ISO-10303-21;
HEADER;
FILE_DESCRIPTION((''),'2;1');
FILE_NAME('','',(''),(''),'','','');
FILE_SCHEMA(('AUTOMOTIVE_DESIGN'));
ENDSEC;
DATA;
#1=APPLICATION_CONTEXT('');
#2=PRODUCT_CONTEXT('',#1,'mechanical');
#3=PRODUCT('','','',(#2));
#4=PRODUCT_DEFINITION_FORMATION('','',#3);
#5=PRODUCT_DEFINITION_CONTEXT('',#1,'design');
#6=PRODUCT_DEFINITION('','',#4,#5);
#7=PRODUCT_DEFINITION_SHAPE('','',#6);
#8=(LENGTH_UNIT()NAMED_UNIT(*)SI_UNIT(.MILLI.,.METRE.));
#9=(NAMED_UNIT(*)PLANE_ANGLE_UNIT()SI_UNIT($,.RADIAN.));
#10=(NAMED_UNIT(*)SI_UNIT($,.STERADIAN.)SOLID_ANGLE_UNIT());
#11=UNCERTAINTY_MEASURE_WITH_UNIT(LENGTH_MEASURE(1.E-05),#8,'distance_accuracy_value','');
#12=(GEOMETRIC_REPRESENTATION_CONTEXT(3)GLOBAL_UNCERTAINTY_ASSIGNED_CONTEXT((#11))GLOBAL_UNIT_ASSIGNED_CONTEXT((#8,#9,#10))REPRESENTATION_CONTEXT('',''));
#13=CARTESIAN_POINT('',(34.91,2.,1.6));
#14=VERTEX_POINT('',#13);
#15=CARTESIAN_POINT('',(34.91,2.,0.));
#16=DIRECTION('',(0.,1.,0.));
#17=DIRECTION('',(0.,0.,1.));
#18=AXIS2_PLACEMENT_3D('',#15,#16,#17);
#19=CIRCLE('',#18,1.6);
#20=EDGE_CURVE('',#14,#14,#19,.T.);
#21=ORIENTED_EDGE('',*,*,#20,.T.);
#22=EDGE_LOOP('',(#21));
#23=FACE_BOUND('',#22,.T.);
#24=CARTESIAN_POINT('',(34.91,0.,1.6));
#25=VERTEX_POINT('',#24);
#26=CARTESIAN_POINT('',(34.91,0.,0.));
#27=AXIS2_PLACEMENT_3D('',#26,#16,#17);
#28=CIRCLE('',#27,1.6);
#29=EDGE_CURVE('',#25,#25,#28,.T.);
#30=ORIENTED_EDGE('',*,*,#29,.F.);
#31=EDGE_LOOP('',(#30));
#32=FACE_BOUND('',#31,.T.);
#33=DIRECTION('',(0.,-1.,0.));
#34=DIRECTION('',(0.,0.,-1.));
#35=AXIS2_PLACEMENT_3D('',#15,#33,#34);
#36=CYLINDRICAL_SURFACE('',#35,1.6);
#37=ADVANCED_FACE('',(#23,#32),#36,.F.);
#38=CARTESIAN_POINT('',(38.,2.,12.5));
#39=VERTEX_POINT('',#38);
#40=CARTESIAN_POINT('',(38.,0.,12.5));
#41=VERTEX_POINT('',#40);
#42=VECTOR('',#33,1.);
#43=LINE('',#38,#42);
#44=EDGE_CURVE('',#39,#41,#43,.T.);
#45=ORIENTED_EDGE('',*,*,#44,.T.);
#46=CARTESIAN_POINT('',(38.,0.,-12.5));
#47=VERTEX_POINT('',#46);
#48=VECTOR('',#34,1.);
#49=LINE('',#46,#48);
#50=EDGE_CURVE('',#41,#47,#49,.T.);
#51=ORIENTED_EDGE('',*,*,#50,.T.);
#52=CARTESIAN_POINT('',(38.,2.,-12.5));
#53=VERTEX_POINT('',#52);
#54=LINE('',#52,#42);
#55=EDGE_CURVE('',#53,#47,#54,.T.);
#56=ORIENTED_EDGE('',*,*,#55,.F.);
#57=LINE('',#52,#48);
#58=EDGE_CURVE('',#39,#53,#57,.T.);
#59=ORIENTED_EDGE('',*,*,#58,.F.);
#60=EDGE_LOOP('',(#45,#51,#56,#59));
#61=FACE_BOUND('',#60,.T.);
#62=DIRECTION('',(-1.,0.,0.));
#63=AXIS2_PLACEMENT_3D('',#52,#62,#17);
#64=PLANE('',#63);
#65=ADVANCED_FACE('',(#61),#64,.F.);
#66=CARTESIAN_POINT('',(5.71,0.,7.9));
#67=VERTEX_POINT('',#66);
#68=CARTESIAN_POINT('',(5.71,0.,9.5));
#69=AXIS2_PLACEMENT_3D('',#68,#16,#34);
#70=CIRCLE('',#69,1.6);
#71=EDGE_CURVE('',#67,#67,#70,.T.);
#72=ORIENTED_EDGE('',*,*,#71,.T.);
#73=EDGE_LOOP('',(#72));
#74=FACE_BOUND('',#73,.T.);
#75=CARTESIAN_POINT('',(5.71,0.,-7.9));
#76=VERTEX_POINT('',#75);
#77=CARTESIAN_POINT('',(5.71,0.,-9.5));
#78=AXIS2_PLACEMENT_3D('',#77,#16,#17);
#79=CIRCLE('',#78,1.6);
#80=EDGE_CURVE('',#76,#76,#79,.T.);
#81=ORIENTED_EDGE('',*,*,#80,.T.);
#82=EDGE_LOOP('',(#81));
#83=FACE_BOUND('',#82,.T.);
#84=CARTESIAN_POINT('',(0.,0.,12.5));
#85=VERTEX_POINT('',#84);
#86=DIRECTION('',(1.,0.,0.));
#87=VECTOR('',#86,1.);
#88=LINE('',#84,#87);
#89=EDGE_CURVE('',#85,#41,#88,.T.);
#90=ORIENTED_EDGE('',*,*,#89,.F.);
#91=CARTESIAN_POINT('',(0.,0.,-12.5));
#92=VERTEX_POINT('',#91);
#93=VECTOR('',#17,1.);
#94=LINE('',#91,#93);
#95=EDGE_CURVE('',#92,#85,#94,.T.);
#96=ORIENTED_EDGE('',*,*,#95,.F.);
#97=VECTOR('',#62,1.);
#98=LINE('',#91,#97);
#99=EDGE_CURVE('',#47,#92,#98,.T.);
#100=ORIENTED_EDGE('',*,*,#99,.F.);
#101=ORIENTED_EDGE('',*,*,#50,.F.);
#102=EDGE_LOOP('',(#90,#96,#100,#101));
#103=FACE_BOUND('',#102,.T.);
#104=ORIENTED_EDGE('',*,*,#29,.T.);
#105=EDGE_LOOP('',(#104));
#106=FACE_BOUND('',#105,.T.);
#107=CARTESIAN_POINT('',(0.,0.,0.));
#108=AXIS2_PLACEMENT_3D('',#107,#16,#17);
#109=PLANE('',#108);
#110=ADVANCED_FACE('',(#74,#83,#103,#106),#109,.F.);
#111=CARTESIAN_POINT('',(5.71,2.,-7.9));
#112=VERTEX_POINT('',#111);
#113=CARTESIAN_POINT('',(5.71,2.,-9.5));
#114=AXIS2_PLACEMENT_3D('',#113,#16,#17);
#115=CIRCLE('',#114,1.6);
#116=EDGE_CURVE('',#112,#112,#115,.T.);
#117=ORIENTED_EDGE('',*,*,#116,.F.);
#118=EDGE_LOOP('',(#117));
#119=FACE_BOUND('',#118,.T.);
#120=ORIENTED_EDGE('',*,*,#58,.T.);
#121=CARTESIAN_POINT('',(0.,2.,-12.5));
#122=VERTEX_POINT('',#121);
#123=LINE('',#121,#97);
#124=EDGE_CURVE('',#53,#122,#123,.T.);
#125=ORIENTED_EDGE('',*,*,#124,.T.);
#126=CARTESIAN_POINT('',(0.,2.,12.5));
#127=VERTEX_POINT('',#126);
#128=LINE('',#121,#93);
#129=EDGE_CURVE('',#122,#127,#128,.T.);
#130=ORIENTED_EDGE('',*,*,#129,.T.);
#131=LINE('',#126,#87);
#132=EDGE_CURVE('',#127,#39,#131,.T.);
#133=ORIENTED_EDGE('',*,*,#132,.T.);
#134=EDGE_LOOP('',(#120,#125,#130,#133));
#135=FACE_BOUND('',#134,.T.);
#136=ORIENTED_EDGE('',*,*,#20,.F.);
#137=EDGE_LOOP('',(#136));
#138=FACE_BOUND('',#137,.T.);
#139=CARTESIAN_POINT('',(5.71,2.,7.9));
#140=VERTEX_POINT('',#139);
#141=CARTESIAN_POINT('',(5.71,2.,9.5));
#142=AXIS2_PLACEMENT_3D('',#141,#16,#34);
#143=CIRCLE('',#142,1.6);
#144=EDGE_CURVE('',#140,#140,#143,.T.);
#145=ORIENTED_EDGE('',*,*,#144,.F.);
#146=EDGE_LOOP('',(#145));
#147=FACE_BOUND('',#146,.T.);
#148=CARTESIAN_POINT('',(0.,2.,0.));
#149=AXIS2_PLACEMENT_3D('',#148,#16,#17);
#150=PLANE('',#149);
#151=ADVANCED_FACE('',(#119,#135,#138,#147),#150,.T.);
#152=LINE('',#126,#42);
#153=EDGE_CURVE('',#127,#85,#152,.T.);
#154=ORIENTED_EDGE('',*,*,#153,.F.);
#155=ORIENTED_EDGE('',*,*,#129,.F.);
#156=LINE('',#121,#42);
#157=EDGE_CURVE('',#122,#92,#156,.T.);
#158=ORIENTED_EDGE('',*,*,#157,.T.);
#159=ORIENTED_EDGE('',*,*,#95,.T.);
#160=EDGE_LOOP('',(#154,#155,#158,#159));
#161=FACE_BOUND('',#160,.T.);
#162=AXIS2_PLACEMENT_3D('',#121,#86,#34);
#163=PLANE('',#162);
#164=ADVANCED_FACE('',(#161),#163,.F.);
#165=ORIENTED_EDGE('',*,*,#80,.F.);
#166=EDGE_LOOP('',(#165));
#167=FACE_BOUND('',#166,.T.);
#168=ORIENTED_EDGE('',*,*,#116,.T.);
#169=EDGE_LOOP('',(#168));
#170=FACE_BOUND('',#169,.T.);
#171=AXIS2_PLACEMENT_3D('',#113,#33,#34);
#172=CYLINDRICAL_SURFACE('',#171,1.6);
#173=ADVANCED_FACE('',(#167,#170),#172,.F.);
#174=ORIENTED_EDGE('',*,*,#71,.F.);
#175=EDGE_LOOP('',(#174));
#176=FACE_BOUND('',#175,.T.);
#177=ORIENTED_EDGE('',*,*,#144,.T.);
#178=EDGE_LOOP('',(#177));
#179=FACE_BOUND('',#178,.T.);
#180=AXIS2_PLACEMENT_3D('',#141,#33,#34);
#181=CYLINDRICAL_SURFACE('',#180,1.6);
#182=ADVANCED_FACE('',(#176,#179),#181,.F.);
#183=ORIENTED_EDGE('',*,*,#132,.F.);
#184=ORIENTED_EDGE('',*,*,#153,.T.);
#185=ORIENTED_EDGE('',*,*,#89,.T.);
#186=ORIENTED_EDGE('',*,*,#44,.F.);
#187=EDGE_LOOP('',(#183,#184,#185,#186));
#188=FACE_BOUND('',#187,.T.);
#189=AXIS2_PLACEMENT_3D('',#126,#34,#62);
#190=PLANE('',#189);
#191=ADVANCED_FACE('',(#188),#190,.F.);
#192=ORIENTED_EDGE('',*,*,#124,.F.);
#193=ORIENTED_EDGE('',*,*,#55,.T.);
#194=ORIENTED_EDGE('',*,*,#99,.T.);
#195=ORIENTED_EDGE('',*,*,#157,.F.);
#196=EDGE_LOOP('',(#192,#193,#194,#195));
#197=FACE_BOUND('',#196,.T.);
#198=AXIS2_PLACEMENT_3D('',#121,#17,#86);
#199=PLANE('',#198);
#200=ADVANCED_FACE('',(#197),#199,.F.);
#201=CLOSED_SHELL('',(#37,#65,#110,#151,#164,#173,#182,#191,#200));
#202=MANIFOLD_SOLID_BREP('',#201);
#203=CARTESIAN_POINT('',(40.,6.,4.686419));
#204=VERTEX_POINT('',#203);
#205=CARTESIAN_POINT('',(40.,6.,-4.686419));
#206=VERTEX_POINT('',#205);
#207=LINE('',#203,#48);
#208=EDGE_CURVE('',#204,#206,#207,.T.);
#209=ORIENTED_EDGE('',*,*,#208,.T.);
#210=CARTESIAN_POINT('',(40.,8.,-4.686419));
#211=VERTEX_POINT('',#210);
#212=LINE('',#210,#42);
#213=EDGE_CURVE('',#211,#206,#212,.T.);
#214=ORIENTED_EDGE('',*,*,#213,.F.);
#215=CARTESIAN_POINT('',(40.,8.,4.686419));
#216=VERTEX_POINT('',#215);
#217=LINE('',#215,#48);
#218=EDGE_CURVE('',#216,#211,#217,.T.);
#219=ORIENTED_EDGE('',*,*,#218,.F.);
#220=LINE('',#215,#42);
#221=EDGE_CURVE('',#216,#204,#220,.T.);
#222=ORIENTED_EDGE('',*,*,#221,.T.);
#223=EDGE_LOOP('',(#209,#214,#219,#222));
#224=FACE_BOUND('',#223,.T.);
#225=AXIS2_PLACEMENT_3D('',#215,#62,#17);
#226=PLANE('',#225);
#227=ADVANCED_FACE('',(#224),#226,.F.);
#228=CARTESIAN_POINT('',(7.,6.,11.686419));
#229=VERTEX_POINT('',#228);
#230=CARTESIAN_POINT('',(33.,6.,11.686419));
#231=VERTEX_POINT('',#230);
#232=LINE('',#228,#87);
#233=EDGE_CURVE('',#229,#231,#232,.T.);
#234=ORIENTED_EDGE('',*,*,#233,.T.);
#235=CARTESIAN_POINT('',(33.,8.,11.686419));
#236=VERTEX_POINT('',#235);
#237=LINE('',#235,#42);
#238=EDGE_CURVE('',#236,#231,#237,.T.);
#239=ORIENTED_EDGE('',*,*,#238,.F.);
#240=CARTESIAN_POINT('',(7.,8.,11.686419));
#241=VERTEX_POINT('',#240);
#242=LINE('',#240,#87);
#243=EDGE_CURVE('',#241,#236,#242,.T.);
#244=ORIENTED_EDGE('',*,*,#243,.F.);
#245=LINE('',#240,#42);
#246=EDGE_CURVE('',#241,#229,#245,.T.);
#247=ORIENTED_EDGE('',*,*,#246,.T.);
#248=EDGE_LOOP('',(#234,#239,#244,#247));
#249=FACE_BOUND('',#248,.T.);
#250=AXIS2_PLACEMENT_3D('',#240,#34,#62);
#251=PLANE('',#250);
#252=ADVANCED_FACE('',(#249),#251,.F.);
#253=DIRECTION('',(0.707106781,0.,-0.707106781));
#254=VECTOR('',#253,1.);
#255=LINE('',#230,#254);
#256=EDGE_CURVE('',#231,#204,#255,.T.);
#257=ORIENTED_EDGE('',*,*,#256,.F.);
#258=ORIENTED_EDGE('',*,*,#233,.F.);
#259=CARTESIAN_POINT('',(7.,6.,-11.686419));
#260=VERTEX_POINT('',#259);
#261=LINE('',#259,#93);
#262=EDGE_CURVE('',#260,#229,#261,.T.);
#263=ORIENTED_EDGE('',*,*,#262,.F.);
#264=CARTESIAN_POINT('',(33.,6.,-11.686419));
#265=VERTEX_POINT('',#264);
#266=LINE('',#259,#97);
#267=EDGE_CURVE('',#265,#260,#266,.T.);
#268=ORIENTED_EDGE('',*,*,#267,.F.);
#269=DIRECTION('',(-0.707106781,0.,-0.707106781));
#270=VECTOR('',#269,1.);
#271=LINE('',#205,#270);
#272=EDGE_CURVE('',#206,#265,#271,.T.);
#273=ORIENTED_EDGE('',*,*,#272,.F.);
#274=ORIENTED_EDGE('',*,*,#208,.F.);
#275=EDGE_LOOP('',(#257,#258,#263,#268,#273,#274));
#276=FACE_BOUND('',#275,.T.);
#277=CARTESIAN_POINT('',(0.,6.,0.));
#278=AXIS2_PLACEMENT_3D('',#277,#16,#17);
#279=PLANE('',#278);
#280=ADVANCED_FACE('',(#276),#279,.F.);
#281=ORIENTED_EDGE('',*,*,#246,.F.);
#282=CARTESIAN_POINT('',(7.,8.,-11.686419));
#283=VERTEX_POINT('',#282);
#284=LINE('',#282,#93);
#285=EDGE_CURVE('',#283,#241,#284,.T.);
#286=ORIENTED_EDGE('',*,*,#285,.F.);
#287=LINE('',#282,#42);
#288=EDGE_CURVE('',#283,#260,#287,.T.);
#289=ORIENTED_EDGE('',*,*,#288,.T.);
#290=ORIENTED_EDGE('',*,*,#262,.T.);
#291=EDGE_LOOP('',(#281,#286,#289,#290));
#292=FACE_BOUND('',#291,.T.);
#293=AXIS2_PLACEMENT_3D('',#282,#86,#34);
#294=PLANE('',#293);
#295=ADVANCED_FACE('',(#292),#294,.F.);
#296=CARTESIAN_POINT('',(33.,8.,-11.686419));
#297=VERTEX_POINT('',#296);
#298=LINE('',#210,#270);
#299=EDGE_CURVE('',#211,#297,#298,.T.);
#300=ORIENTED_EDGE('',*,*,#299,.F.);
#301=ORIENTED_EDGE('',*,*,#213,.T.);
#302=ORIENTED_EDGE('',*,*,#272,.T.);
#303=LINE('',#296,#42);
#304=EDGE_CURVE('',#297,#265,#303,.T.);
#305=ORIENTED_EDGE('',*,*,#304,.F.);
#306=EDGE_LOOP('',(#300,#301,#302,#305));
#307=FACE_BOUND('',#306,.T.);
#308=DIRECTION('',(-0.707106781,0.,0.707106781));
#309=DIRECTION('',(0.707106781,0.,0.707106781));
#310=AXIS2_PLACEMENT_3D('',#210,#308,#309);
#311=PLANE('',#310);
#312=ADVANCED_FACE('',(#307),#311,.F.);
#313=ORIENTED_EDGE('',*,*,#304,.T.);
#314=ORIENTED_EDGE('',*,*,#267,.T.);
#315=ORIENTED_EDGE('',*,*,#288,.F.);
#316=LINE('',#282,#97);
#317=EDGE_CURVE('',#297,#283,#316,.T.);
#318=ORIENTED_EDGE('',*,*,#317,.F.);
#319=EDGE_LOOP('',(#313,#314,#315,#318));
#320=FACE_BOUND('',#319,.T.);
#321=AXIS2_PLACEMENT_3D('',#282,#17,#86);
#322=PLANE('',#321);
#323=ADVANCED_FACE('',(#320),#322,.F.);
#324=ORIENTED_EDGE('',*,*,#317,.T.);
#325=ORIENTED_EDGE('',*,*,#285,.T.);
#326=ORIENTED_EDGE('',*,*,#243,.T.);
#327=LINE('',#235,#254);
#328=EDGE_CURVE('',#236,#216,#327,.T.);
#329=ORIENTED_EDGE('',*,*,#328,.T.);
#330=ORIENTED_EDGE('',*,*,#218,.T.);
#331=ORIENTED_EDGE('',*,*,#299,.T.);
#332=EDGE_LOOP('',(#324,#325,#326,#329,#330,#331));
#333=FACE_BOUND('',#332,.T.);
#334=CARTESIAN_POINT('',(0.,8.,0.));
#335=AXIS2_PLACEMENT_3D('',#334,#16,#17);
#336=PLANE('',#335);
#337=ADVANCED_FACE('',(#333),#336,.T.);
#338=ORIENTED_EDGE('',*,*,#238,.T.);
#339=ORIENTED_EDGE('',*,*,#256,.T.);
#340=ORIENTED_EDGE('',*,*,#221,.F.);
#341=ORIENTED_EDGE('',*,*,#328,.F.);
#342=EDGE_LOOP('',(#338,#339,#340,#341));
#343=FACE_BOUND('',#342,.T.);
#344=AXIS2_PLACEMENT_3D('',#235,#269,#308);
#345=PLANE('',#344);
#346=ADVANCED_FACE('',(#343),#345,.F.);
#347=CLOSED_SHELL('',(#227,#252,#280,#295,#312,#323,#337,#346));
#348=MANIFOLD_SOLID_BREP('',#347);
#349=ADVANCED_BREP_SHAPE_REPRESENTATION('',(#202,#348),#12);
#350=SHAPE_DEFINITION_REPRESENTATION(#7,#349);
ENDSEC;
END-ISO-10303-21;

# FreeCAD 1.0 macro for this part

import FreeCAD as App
import Part
import Sketcher

V = App.Vector
Q = App.Units.Quantity

doc = App.newDocument("Part")
body = doc.addObject("PartDesign::Body", "Body")

# Sketch on XZ plane
sketch1 = body.newObject("Sketcher::SketchObject", "Sketch")
sketch1.AttachmentSupport = (doc.getObject("XZ_Plane"), [""])
sketch1.MapMode = "FlatFace"
sketch1.addGeometry([
    Part.LineSegment(V(0, -12.5, 0), V(0, 12.5, 0)),  # 0
    Part.LineSegment(V(0, 12.5, 0), V(38, 12.5, 0)),  # 1
    Part.LineSegment(V(38, 12.5, 0), V(38, -12.5, 0)),  # 2
    Part.LineSegment(V(38, -12.5, 0), V(0, -12.5, 0)),  # 3
    Part.Circle(V(5.7, 9.5, 0), V(0, 0, 1), 1.6),  # 4
    Part.Circle(V(5.7, -9.5, 0), V(0, 0, 1), 1.6),  # 5
    Part.Circle(V(34.9, 0, 0), V(0, 0, 1), 1.6),  # 6
], False)
sketch1.addConstraint([
    Sketcher.Constraint("Coincident", 0, 2, 1, 1),
    Sketcher.Constraint("Coincident", 1, 2, 2, 1),
    Sketcher.Constraint("Coincident", 2, 2, 3, 1),
    Sketcher.Constraint("Coincident", 3, 2, 0, 1),
    Sketcher.Constraint("Vertical", 0),
    Sketcher.Constraint("Horizontal", 1),
    Sketcher.Constraint("Vertical", 2),
    Sketcher.Constraint("Horizontal", 3),
    Sketcher.Constraint("Equal", 4, 5),
    Sketcher.Constraint("Equal", 5, 6),
    Sketcher.Constraint("Symmetric", 0, 2, 3, 2, -1, 1),
    Sketcher.Constraint("Symmetric", 4, 3, 5, 3, -1),
    Sketcher.Constraint("PointOnObject", 6, 3, -1),
    Sketcher.Constraint("Diameter", 4, Q("3.2 mm")),
    Sketcher.Constraint("DistanceX", 1, 1, 1, 2, Q("38 mm")),
    Sketcher.Constraint("DistanceY", 0, 1, 0, 2, Q("25 mm")),
    Sketcher.Constraint("DistanceY", 5, 3, 4, 3, Q("19 mm")),
    Sketcher.Constraint("DistanceX", 4, 3, 6, 3, Q("29.2 mm")),
    Sketcher.Constraint("DistanceX", -1, 1, 4, 3, Q("5.71 mm")),
])
pad1 = body.newObject("PartDesign::Pad", "Pad")
pad1.Profile = sketch1
pad1.Length = 2
pad1.Reversed = True
body2 = doc.addObject("PartDesign::Body", "Body001")

# Sketch on XZ plane
sketch2 = body2.newObject("Sketcher::SketchObject", "Sketch001")
sketch2.AttachmentSupport = (doc.getObject("XZ_Plane001"), [""])
sketch2.MapMode = "FlatFace"
sketch2.AttachmentOffset = App.Placement(V(0, 0, -6), App.Rotation())
sketch2.addGeometry([
    Part.LineSegment(V(33, 12, 0), V(40, 5, 0)),  # 0
    Part.LineSegment(V(40, 5, 0), V(40, -5, 0)),  # 1
    Part.LineSegment(V(40, -5, 0), V(33, -12, 0)),  # 2
    Part.LineSegment(V(33, -12, 0), V(7, -12, 0)),  # 3
    Part.LineSegment(V(7, -12, 0), V(7, 12, 0)),  # 4
    Part.LineSegment(V(7, 12, 0), V(33, 12, 0)),  # 5
], False)
sketch2.addConstraint([
    Sketcher.Constraint("Coincident", 0, 2, 1, 1),
    Sketcher.Constraint("Coincident", 1, 2, 2, 1),
    Sketcher.Constraint("Coincident", 2, 2, 3, 1),
    Sketcher.Constraint("Coincident", 3, 2, 4, 1),
    Sketcher.Constraint("Coincident", 4, 2, 5, 1),
    Sketcher.Constraint("Coincident", 5, 2, 0, 1),
    Sketcher.Constraint("Vertical", 1),
    Sketcher.Constraint("Horizontal", 3),
    Sketcher.Constraint("Vertical", 4),
    Sketcher.Constraint("Horizontal", 5),
    Sketcher.Constraint("Symmetric", 2, 2, 5, 2, -1),
    Sketcher.Constraint("Perpendicular", 0, 2),
    Sketcher.Constraint("Equal", 0, 2),
    Sketcher.Constraint("DistanceX", 3, 2, 3, 1, Q("26 mm")),
    Sketcher.Constraint("DistanceX", -1, 1, 0, 2, Q("40 mm")),
    Sketcher.Constraint("DistanceX", -1, 1, 2, 2, Q("33 mm")),
    Sketcher.Constraint("DistanceY", 1, 2, 1, 1, Q("9.372838 mm")),
])
pad2 = body2.newObject("PartDesign::Pad", "Pad001")
pad2.Profile = sketch2
pad2.Length = 2
pad2.Reversed = True

doc.recompute()
